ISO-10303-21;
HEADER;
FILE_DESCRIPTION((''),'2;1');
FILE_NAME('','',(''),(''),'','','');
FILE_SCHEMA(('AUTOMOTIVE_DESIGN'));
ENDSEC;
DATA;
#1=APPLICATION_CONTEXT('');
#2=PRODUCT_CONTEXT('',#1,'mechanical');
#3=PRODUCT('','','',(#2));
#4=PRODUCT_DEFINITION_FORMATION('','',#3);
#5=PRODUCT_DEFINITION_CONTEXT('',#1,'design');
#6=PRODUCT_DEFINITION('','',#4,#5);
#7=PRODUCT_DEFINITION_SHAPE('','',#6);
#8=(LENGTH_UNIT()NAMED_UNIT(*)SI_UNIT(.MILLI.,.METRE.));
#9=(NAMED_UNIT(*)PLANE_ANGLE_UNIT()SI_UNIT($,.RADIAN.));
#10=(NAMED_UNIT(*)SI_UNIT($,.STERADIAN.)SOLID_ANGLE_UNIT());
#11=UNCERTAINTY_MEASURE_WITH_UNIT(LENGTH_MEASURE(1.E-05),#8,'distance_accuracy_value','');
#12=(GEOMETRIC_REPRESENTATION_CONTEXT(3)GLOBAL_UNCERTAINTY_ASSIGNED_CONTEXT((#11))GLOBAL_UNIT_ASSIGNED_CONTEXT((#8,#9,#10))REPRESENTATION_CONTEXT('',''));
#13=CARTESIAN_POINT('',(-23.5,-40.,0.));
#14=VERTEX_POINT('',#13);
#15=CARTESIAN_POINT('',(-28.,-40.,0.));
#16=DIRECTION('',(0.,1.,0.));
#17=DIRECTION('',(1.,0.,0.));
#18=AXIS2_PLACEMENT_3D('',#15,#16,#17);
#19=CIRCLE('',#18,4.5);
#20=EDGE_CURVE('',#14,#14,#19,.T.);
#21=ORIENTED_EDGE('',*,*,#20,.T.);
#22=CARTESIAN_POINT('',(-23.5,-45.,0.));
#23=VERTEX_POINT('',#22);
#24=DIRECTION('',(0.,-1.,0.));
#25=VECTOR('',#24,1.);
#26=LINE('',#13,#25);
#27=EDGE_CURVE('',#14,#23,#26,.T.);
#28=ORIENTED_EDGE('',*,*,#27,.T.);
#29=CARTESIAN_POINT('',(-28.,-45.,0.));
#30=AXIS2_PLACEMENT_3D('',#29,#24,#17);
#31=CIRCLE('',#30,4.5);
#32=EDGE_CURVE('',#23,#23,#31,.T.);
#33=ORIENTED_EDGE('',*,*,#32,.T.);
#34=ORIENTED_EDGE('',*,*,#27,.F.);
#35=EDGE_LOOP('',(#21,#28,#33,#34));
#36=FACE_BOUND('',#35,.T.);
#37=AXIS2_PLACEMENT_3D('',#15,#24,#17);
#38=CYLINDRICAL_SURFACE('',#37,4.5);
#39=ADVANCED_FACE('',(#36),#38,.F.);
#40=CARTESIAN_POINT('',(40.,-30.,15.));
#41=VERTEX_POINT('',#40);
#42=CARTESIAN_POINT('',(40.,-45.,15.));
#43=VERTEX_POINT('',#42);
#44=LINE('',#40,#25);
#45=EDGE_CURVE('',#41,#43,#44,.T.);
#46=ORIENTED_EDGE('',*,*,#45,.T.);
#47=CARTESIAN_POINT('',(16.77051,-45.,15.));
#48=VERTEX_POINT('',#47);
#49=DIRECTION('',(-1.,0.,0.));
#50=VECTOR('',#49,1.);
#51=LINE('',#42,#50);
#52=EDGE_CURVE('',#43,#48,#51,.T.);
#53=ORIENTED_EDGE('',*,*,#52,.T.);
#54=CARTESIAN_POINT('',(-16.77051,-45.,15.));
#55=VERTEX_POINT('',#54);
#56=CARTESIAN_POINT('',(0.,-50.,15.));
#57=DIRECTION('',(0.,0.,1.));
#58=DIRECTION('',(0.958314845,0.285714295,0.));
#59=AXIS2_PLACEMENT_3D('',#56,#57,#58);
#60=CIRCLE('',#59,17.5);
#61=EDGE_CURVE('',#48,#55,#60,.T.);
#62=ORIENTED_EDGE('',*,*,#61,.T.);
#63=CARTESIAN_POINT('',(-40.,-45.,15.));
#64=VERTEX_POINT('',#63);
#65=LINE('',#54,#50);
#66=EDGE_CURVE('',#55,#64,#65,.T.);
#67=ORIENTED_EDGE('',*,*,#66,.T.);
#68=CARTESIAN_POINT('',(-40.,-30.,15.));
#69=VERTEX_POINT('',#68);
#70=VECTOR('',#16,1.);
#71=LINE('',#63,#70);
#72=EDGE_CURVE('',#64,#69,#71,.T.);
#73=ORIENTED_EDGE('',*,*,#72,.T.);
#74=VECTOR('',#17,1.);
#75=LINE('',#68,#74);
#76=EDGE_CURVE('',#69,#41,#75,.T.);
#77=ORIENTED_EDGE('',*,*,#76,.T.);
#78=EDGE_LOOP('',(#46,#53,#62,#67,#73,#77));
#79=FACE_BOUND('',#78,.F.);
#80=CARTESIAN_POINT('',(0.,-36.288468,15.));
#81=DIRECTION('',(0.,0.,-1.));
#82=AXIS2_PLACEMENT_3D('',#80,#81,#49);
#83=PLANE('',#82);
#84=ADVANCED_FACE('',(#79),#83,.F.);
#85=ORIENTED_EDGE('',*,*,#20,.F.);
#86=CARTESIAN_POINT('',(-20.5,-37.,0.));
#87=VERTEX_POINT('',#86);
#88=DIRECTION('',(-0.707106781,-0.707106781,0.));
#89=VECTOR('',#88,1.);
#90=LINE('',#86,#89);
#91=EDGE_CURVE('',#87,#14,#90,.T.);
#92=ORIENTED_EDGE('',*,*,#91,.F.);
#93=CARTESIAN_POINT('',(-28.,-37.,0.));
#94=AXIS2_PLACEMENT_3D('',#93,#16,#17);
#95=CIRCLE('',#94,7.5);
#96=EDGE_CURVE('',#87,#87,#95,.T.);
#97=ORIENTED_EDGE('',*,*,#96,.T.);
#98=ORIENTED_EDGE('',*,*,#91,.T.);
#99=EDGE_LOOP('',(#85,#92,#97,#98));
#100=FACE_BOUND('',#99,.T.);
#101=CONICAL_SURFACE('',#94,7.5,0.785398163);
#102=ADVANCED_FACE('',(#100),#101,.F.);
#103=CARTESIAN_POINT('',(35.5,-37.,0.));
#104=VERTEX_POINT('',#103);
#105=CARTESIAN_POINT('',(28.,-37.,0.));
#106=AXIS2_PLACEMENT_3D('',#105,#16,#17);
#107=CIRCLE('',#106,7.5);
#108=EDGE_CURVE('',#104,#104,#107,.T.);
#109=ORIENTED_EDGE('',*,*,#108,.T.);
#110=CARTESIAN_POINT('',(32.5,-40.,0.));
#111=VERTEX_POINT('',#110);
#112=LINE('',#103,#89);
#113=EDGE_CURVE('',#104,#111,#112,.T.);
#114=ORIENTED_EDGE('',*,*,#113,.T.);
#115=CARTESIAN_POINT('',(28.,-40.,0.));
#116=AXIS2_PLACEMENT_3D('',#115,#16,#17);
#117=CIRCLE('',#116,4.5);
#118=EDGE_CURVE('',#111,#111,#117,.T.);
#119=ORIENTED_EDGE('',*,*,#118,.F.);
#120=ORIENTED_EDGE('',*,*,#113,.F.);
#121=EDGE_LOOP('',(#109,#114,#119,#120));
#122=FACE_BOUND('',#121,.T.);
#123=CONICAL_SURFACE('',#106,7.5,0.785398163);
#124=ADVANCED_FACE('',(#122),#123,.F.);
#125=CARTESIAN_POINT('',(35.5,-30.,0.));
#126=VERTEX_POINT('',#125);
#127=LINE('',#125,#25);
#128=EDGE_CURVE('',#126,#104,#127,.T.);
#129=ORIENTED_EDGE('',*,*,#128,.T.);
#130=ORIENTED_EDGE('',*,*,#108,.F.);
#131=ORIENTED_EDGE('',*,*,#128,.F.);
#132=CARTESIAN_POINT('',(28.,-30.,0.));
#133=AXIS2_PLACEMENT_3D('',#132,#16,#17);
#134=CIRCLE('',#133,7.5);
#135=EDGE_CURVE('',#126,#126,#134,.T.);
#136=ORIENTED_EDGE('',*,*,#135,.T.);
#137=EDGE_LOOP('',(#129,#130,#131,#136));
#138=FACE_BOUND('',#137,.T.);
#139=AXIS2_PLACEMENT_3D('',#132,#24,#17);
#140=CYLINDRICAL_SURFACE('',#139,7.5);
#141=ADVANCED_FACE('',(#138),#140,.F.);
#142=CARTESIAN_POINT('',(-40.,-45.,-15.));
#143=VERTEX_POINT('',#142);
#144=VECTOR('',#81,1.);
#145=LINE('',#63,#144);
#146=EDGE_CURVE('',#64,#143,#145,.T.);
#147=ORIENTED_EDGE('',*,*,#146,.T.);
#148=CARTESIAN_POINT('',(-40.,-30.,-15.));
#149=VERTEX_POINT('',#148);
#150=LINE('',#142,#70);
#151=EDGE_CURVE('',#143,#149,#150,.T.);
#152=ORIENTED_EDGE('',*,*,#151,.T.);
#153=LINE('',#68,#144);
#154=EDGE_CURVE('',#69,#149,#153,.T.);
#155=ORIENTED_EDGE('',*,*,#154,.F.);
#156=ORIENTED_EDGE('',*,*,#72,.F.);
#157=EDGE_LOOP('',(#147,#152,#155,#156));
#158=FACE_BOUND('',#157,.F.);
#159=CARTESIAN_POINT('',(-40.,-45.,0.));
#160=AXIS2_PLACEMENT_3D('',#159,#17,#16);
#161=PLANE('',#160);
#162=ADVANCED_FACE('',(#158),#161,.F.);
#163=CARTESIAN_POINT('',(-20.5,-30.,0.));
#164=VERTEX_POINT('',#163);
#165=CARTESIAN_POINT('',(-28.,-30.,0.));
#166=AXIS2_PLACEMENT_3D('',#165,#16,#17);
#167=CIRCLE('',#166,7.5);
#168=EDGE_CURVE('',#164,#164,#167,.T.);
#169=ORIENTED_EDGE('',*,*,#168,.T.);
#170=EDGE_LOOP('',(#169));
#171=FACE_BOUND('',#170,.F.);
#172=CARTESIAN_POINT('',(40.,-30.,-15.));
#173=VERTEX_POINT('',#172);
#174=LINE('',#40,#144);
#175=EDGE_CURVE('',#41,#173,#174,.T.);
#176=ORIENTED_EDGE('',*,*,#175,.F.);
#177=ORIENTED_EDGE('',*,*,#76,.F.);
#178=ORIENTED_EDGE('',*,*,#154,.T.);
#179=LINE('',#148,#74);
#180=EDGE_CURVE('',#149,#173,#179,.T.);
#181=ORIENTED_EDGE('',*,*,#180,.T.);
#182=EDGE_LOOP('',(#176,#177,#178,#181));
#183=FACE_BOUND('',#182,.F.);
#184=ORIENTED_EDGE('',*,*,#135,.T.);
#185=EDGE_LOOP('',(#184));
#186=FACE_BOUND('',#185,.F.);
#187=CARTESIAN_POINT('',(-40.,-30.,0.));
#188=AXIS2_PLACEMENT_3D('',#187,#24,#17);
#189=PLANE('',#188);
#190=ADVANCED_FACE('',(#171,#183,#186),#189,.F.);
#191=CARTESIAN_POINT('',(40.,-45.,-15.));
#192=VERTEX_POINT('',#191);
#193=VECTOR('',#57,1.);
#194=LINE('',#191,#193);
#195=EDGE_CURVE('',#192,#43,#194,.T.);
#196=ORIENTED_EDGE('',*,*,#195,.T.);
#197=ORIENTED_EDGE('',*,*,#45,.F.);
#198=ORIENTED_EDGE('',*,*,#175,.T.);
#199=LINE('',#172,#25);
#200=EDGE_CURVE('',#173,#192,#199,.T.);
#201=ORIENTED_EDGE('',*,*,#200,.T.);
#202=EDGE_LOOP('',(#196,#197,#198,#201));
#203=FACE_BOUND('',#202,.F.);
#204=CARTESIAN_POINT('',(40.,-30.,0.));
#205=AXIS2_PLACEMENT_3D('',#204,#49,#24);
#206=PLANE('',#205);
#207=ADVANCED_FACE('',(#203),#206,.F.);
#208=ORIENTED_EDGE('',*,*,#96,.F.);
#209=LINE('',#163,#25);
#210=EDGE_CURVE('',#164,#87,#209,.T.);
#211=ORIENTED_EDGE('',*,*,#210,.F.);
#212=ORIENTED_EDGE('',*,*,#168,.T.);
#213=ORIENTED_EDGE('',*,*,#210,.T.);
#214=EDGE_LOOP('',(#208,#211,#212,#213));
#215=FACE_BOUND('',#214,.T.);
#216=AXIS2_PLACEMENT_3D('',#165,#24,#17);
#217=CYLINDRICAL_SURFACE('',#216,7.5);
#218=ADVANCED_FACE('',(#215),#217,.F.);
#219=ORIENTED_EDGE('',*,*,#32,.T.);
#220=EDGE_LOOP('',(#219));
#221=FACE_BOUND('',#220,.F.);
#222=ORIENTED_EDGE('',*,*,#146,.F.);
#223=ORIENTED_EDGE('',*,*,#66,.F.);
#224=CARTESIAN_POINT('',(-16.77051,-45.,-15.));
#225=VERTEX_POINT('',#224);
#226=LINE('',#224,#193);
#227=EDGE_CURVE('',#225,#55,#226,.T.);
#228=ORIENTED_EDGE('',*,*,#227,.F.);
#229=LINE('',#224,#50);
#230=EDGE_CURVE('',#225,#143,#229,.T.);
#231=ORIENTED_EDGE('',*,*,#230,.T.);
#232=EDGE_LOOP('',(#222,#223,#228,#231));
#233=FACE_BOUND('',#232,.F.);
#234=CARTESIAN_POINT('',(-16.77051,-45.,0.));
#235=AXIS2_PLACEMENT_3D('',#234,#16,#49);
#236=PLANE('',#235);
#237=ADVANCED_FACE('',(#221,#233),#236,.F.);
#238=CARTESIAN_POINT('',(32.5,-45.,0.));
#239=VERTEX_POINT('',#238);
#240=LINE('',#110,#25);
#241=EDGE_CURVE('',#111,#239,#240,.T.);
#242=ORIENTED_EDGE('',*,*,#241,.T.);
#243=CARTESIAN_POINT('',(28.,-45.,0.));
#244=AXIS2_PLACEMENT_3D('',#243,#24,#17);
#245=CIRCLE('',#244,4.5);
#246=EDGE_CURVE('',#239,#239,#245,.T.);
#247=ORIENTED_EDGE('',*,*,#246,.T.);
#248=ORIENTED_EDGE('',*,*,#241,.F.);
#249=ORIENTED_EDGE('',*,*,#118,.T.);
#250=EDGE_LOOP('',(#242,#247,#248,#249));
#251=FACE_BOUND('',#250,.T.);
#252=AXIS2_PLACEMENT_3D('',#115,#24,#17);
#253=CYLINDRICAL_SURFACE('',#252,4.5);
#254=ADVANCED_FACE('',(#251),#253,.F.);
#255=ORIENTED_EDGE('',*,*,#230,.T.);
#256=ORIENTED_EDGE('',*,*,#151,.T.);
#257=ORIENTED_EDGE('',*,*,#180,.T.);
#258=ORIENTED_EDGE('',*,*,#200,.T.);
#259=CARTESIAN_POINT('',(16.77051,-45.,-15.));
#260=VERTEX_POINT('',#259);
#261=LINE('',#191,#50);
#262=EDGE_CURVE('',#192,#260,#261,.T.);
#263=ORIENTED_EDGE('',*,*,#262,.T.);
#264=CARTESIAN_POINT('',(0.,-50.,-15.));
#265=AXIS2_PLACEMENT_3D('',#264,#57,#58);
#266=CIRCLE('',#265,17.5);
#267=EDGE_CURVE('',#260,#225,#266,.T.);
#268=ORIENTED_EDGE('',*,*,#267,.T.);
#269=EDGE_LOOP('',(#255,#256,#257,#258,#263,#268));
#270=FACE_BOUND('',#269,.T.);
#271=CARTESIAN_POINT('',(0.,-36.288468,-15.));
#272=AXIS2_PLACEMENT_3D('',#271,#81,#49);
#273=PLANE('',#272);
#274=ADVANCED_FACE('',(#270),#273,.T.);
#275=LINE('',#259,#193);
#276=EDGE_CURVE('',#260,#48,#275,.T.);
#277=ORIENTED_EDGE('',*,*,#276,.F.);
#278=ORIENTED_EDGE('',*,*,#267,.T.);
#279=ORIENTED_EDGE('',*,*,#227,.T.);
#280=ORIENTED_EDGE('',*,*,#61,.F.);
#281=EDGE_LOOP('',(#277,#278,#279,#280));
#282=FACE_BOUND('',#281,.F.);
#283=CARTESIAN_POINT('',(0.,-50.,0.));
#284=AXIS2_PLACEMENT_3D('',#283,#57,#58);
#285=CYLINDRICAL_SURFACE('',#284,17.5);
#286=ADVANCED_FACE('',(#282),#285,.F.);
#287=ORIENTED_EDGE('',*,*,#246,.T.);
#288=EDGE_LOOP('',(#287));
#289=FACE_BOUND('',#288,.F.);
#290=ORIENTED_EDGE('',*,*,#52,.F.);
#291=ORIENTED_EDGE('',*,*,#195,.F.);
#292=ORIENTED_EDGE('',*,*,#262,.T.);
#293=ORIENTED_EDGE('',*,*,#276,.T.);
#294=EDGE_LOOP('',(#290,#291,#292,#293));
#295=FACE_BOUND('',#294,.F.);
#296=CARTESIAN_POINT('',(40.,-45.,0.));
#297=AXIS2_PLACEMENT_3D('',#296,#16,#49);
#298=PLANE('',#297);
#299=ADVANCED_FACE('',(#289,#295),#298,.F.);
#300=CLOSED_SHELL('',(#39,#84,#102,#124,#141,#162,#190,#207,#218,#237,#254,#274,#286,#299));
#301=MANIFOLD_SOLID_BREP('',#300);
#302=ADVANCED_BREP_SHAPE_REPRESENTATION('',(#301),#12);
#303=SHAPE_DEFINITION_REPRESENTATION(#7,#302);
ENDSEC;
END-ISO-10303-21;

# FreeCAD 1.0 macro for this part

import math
import FreeCAD as App
import Part
import Sketcher
Q = App.Units.Quantity

doc = App.newDocument("Part")
body = doc.addObject("PartDesign::Body", "Body")

sketch1 = doc.addObject("Sketcher::SketchObject", "Sketch")
body.addObject(sketch1)
sketch1.AttachmentSupport = (doc.XY_Plane, [""])
sketch1.MapMode = "FlatFace"
sketch1.addGeometry(Part.LineSegment(App.Vector(-40, -15, 0), App.Vector(-17, -15, 0)), False)
sketch1.addGeometry(Part.ArcOfCircle(Part.Circle(App.Vector(0, -20, 0), App.Vector(0, 0, 1), 18), math.radians(17), math.radians(163)), False)
sketch1.addGeometry(Part.LineSegment(App.Vector(17, -15, 0), App.Vector(40, -15, 0)), False)
sketch1.addGeometry(Part.LineSegment(App.Vector(40, -15, 0), App.Vector(40, 0, 0)), False)
sketch1.addGeometry(Part.LineSegment(App.Vector(40, 0, 0), App.Vector(-40, 0, 0)), False)
sketch1.addGeometry(Part.LineSegment(App.Vector(-40, 0, 0), App.Vector(-40, -15, 0)), False)
sketch1.addConstraint(Sketcher.Constraint("Coincident", 0, 2, 1, 2))
sketch1.addConstraint(Sketcher.Constraint("Coincident", 1, 1, 2, 1))
sketch1.addConstraint(Sketcher.Constraint("Coincident", 2, 2, 3, 1))
sketch1.addConstraint(Sketcher.Constraint("Coincident", 3, 2, 4, 1))
sketch1.addConstraint(Sketcher.Constraint("Coincident", 4, 2, 5, 1))
sketch1.addConstraint(Sketcher.Constraint("Coincident", 5, 2, 0, 1))
sketch1.addConstraint(Sketcher.Constraint("Horizontal", 0))
sketch1.addConstraint(Sketcher.Constraint("Horizontal", 2))
sketch1.addConstraint(Sketcher.Constraint("Vertical", 3))
sketch1.addConstraint(Sketcher.Constraint("Horizontal", 4))
sketch1.addConstraint(Sketcher.Constraint("Vertical", 5))
sketch1.addConstraint(Sketcher.Constraint("Symmetric", 3, 2, 4, 2, -1, 1))
sketch1.addConstraint(Sketcher.Constraint("Symmetric", 0, 2, 1, 1, -2))
sketch1.addConstraint(Sketcher.Constraint("Radius", 1, 17.5))
sketch1.addConstraint(Sketcher.Constraint("DistanceX", 4, 2, 4, 1, 80.0))
sketch1.addConstraint(Sketcher.Constraint("DistanceY", 3, 1, 3, 2, 15.0))
sketch1.addConstraint(Sketcher.Constraint("DistanceY", 1, 3, -1, 1, 20.0))
pad1 = doc.addObject("PartDesign::Pad", "Pad")
body.addObject(pad1)
pad1.Profile = sketch1
pad1.Length = 30
pad1.Midplane = True

sketch2 = doc.addObject("Sketcher::SketchObject", "Sketch001")
body.addObject(sketch2)
sketch2.AttachmentSupport = (doc.XY_Plane, [""])
sketch2.MapMode = "FlatFace"
sketch2.addGeometry(Part.LineSegment(App.Vector(35.5, 0, 0), App.Vector(28, 0, 0)), False)
sketch2.addGeometry(Part.LineSegment(App.Vector(28, 0, 0), App.Vector(28, -27, 0)), False)
sketch2.addGeometry(Part.LineSegment(App.Vector(28, -27, 0), App.Vector(32.5, -27, 0)), False)
sketch2.addGeometry(Part.LineSegment(App.Vector(32.5, -27, 0), App.Vector(32.5, -10, 0)), False)
sketch2.addGeometry(Part.LineSegment(App.Vector(32.5, -10, 0), App.Vector(35.5, -7, 0)), False)
sketch2.addGeometry(Part.LineSegment(App.Vector(35.5, -7, 0), App.Vector(35.5, 0, 0)), False)
sketch2.addGeometry(Part.LineSegment(App.Vector(28, -27, 0), App.Vector(28, 0, 0)), True)
sketch2.addConstraint(Sketcher.Constraint("Coincident", 0, 2, 1, 1))
sketch2.addConstraint(Sketcher.Constraint("Coincident", 1, 2, 2, 1))
sketch2.addConstraint(Sketcher.Constraint("Coincident", 2, 2, 3, 1))
sketch2.addConstraint(Sketcher.Constraint("Coincident", 3, 2, 4, 1))
sketch2.addConstraint(Sketcher.Constraint("Coincident", 4, 2, 5, 1))
sketch2.addConstraint(Sketcher.Constraint("Coincident", 5, 2, 0, 1))
sketch2.addConstraint(Sketcher.Constraint("Horizontal", 0))
sketch2.addConstraint(Sketcher.Constraint("Vertical", 1))
sketch2.addConstraint(Sketcher.Constraint("Horizontal", 2))
sketch2.addConstraint(Sketcher.Constraint("Vertical", 3))
sketch2.addConstraint(Sketcher.Constraint("Vertical", 5))
sketch2.addConstraint(Sketcher.Constraint("Vertical", 6))
sketch2.addConstraint(Sketcher.Constraint("Coincident", 6, 1, 1, 2))
sketch2.addConstraint(Sketcher.Constraint("PointOnObject", 0, 2, -1))
sketch2.addConstraint(Sketcher.Constraint("PointOnObject", 6, 2, -1))
sketch2.addConstraint(Sketcher.Constraint("DistanceY", 1, 2, 1, 1, 27.0))
sketch2.addConstraint(Sketcher.Constraint("DistanceY", 3, 1, 3, 2, 17.0))
sketch2.addConstraint(Sketcher.Constraint("DistanceY", 5, 1, 5, 2, 7.0))
sketch2.addConstraint(Sketcher.Constraint("Angle", 4, Q("45 deg")))
sketch2.addConstraint(Sketcher.Constraint("DistanceX", 0, 2, 0, 1, 7.5))
sketch2.addConstraint(Sketcher.Constraint("DistanceX", -1, 1, 0, 2, 28.0))
groove = doc.addObject("PartDesign::Groove", "Groove")
body.addObject(groove)
groove.Profile = sketch2
groove.ReferenceAxis = (sketch2, ["Axis0"])
groove.Angle = 360

sketch3 = doc.addObject("Sketcher::SketchObject", "Sketch002")
body.addObject(sketch3)
sketch3.AttachmentSupport = (doc.XY_Plane, [""])
sketch3.MapMode = "FlatFace"
sketch3.addGeometry(Part.LineSegment(App.Vector(-20.5, 0, 0), App.Vector(-28, 0, 0)), False)
sketch3.addGeometry(Part.LineSegment(App.Vector(-28, 0, 0), App.Vector(-28, -30, 0)), False)
sketch3.addGeometry(Part.LineSegment(App.Vector(-28, -30, 0), App.Vector(-23.5, -30, 0)), False)
sketch3.addGeometry(Part.LineSegment(App.Vector(-23.5, -30, 0), App.Vector(-23.5, -10, 0)), False)
sketch3.addGeometry(Part.LineSegment(App.Vector(-23.5, -10, 0), App.Vector(-20.5, -7, 0)), False)
sketch3.addGeometry(Part.LineSegment(App.Vector(-20.5, -7, 0), App.Vector(-20.5, 0, 0)), False)
sketch3.addGeometry(Part.LineSegment(App.Vector(-28, -30, 0), App.Vector(-28, 0, 0)), True)
sketch3.addConstraint(Sketcher.Constraint("Coincident", 0, 2, 1, 1))
sketch3.addConstraint(Sketcher.Constraint("Coincident", 1, 2, 2, 1))
sketch3.addConstraint(Sketcher.Constraint("Coincident", 2, 2, 3, 1))
sketch3.addConstraint(Sketcher.Constraint("Coincident", 3, 2, 4, 1))
sketch3.addConstraint(Sketcher.Constraint("Coincident", 4, 2, 5, 1))
sketch3.addConstraint(Sketcher.Constraint("Coincident", 5, 2, 0, 1))
sketch3.addConstraint(Sketcher.Constraint("Horizontal", 0))
sketch3.addConstraint(Sketcher.Constraint("Vertical", 1))
sketch3.addConstraint(Sketcher.Constraint("Horizontal", 2))
sketch3.addConstraint(Sketcher.Constraint("Vertical", 3))
sketch3.addConstraint(Sketcher.Constraint("Vertical", 5))
sketch3.addConstraint(Sketcher.Constraint("Vertical", 6))
sketch3.addConstraint(Sketcher.Constraint("Coincident", 6, 1, 1, 2))
sketch3.addConstraint(Sketcher.Constraint("PointOnObject", 0, 2, -1))
sketch3.addConstraint(Sketcher.Constraint("PointOnObject", 6, 2, -1))
sketch3.addConstraint(Sketcher.Constraint("DistanceY", 1, 2, 1, 1, 30.0))
sketch3.addConstraint(Sketcher.Constraint("DistanceY", 3, 1, 3, 2, 20.0))
sketch3.addConstraint(Sketcher.Constraint("DistanceY", 5, 1, 5, 2, 7.0))
sketch3.addConstraint(Sketcher.Constraint("Angle", 4, Q("45 deg")))
sketch3.addConstraint(Sketcher.Constraint("DistanceX", 0, 2, 0, 1, 7.5))
sketch3.addConstraint(Sketcher.Constraint("DistanceX", 0, 2, -1, 1, 28.0))
groove2 = doc.addObject("PartDesign::Groove", "Groove001")
body.addObject(groove2)
groove2.Profile = sketch3
groove2.ReferenceAxis = (sketch3, ["Axis0"])
groove2.Angle = 360
body2 = doc.addObject("PartDesign::Body", "Body001")
doc.recompute()

body.Placement = App.Placement(App.Vector(0, -30, 0), App.Rotation(App.Vector(0, 0, 1), 0))
boolean = doc.addObject("PartDesign::Boolean", "Boolean")
body2.addObject(boolean)
boolean.Type = "Fuse"
boolean.addObjects([body])

doc.recompute()
